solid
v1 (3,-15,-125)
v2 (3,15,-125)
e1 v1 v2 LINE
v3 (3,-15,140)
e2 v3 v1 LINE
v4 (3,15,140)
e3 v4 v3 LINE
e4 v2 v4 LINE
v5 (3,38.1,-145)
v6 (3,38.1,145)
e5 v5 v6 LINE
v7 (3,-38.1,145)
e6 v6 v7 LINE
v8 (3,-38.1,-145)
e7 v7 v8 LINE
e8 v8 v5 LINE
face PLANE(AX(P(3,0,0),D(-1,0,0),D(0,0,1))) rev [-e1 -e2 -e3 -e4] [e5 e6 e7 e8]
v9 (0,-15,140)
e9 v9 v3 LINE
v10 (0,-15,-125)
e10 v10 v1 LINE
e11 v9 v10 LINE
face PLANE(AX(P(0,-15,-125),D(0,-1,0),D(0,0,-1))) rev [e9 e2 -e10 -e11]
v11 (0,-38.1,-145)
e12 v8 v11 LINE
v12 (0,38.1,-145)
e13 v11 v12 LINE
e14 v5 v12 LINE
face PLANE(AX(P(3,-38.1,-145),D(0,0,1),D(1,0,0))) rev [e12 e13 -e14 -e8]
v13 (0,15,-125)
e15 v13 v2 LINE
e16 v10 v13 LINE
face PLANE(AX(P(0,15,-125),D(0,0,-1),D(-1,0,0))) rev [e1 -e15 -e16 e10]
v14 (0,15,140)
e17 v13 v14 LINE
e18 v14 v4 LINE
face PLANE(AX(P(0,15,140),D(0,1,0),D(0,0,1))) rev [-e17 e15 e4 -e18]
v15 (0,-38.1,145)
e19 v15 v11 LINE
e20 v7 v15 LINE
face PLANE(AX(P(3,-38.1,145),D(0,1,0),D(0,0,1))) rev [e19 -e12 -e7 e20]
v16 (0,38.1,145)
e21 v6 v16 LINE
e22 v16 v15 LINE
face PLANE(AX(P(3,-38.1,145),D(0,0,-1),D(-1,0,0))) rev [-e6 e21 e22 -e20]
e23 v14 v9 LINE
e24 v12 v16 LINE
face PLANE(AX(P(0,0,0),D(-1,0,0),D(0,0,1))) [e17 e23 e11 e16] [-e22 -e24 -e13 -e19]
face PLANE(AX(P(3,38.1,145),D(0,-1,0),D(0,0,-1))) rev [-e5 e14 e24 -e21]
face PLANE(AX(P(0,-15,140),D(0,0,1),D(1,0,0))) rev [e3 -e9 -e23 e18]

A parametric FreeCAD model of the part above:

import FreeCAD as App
import Part
import Sketcher
Q = App.Units.Quantity

doc = App.newDocument("Part")
body = doc.addObject("PartDesign::Body", "Body")

sketch1 = body.newObject("Sketcher::SketchObject", "Sketch")
sketch1.AttachmentSupport = (doc.getObject("YZ_Plane"), [""])
sketch1.MapMode = "FlatFace"
sketch1.addGeometry(Part.LineSegment(App.Vector(38, 145, 0), App.Vector(-38, 145, 0)), False)
sketch1.addGeometry(Part.LineSegment(App.Vector(-38, 145, 0), App.Vector(-38, -145, 0)), False)
sketch1.addGeometry(Part.LineSegment(App.Vector(-38, -145, 0), App.Vector(38, -145, 0)), False)
sketch1.addGeometry(Part.LineSegment(App.Vector(38, -145, 0), App.Vector(38, 145, 0)), False)
sketch1.addConstraint(Sketcher.Constraint("Coincident", 0, 2, 1, 1))
sketch1.addConstraint(Sketcher.Constraint("Coincident", 1, 2, 2, 1))
sketch1.addConstraint(Sketcher.Constraint("Coincident", 2, 2, 3, 1))
sketch1.addConstraint(Sketcher.Constraint("Coincident", 3, 2, 0, 1))
sketch1.addConstraint(Sketcher.Constraint("Horizontal", 0))
sketch1.addConstraint(Sketcher.Constraint("Vertical", 1))
sketch1.addConstraint(Sketcher.Constraint("Horizontal", 2))
sketch1.addConstraint(Sketcher.Constraint("Vertical", 3))
sketch1.addConstraint(Sketcher.Constraint("Symmetric", 0, 2, 2, 2, -1, 1))
sketch1.addConstraint(Sketcher.Constraint("DistanceY", 1, 2, 1, 1, Q("290 mm")))
sketch1.addConstraint(Sketcher.Constraint("DistanceX", 0, 2, 0, 1, Q("76.2 mm")))
pad1 = body.newObject("PartDesign::Pad", "Pad")
pad1.Profile = sketch1
pad1.Length = 3

sketch2 = body.newObject("Sketcher::SketchObject", "Sketch001")
sketch2.AttachmentSupport = (doc.getObject("YZ_Plane"), [""])
sketch2.MapMode = "FlatFace"
sketch2.AttachmentOffset = App.Placement(App.Vector(0, 0, 3), App.Rotation())
sketch2.addGeometry(Part.LineSegment(App.Vector(15, 140, 0), App.Vector(-15, 140, 0)), False)
sketch2.addGeometry(Part.LineSegment(App.Vector(-15, 140, 0), App.Vector(-15, -125, 0)), False)
sketch2.addGeometry(Part.LineSegment(App.Vector(-15, -125, 0), App.Vector(15, -125, 0)), False)
sketch2.addGeometry(Part.LineSegment(App.Vector(15, -125, 0), App.Vector(15, 140, 0)), False)
sketch2.addConstraint(Sketcher.Constraint("Coincident", 0, 2, 1, 1))
sketch2.addConstraint(Sketcher.Constraint("Coincident", 1, 2, 2, 1))
sketch2.addConstraint(Sketcher.Constraint("Coincident", 2, 2, 3, 1))
sketch2.addConstraint(Sketcher.Constraint("Coincident", 3, 2, 0, 1))
sketch2.addConstraint(Sketcher.Constraint("Horizontal", 0))
sketch2.addConstraint(Sketcher.Constraint("Vertical", 1))
sketch2.addConstraint(Sketcher.Constraint("Horizontal", 2))
sketch2.addConstraint(Sketcher.Constraint("Vertical", 3))
sketch2.addConstraint(Sketcher.Constraint("DistanceX", 0, 2, 0, 1, Q("30 mm")))
sketch2.addConstraint(Sketcher.Constraint("DistanceY", 1, 2, 1, 1, Q("265 mm")))
sketch2.addConstraint(Sketcher.Constraint("DistanceX", 0, 2, -1, 1, Q("15 mm")))
sketch2.addConstraint(Sketcher.Constraint("DistanceY", -1, 1, 0, 2, Q("140 mm")))
pocket1 = body.newObject("PartDesign::Pocket", "Pocket")
pocket1.Profile = sketch2
pocket1.Type = "ThroughAll"

doc.recompute()
